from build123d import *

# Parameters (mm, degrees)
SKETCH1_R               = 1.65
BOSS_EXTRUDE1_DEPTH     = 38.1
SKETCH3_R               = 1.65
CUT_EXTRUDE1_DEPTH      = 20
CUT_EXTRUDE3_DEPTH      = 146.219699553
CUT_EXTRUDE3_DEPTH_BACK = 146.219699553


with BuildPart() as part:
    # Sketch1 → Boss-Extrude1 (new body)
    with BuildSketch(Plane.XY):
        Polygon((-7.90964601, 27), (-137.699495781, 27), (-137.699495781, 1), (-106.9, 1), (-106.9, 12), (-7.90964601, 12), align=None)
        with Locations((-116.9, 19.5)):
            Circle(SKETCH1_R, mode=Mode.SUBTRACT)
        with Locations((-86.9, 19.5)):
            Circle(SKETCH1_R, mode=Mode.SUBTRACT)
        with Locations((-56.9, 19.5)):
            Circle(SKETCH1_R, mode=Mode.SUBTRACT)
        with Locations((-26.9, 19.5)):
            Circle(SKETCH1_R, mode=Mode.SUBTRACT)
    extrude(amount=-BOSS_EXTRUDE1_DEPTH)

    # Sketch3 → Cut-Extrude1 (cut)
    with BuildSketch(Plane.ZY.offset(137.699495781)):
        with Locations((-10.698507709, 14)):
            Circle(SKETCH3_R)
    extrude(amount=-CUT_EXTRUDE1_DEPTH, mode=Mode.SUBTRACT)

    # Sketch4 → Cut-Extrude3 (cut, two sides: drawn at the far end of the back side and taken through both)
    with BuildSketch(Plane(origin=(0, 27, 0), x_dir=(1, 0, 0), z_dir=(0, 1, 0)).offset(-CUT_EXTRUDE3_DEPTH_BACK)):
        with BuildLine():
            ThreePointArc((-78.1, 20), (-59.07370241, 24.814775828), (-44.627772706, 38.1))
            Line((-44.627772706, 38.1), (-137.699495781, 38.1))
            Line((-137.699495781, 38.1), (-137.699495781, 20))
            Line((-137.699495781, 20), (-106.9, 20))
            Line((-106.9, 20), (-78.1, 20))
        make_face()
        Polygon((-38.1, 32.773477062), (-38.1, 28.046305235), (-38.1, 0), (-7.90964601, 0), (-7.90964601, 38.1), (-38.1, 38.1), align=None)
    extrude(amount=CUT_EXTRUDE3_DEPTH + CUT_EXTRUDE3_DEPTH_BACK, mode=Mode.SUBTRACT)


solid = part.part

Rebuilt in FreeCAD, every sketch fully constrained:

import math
import FreeCAD as App
import Part
import Sketcher

doc = App.newDocument("Part")
body = doc.addObject("PartDesign::Body", "Body")

# Sketch on XY plane
sketch1 = body.newObject("Sketcher::SketchObject", "Sketch")
sketch1.AttachmentSupport = (doc.getObject("XY_Plane"), [""])
sketch1.MapMode = "FlatFace"
sketch1.addGeometry(Part.LineSegment(App.Vector(-7.9, 27, 0), App.Vector(-137.7, 27, 0)), False)
sketch1.addGeometry(Part.LineSegment(App.Vector(-137.7, 27, 0), App.Vector(-137.7, 1, 0)), False)
sketch1.addGeometry(Part.LineSegment(App.Vector(-137.7, 1, 0), App.Vector(-106.9, 1, 0)), False)
sketch1.addGeometry(Part.LineSegment(App.Vector(-106.9, 1, 0), App.Vector(-106.9, 12, 0)), False)
sketch1.addGeometry(Part.LineSegment(App.Vector(-106.9, 12, 0), App.Vector(-7.9, 12, 0)), False)
sketch1.addGeometry(Part.LineSegment(App.Vector(-7.9, 12, 0), App.Vector(-7.9, 27, 0)), False)
sketch1.addGeometry(Part.Circle(App.Vector(-116.9, 19.5, 0), App.Vector(0, 0, 1), 1.6), False)
sketch1.addGeometry(Part.Circle(App.Vector(-86.9, 19.5, 0), App.Vector(0, 0, 1), 1.6), False)
sketch1.addGeometry(Part.Circle(App.Vector(-56.9, 19.5, 0), App.Vector(0, 0, 1), 1.6), False)
sketch1.addGeometry(Part.Circle(App.Vector(-26.9, 19.5, 0), App.Vector(0, 0, 1), 1.6), False)
sketch1.addConstraint(Sketcher.Constraint("Coincident", 0, 2, 1, 1))
sketch1.addConstraint(Sketcher.Constraint("Coincident", 1, 2, 2, 1))
sketch1.addConstraint(Sketcher.Constraint("Coincident", 2, 2, 3, 1))
sketch1.addConstraint(Sketcher.Constraint("Coincident", 3, 2, 4, 1))
sketch1.addConstraint(Sketcher.Constraint("Coincident", 4, 2, 5, 1))
sketch1.addConstraint(Sketcher.Constraint("Coincident", 5, 2, 0, 1))
sketch1.addConstraint(Sketcher.Constraint("Horizontal", 0))
sketch1.addConstraint(Sketcher.Constraint("Vertical", 1))
sketch1.addConstraint(Sketcher.Constraint("Horizontal", 2))
sketch1.addConstraint(Sketcher.Constraint("Vertical", 3))
sketch1.addConstraint(Sketcher.Constraint("Horizontal", 4))
sketch1.addConstraint(Sketcher.Constraint("Vertical", 5))
sketch1.addConstraint(Sketcher.Constraint("Equal", 6, 7))
sketch1.addConstraint(Sketcher.Constraint("Equal", 7, 8))
sketch1.addConstraint(Sketcher.Constraint("Equal", 8, 9))
sketch1.addConstraint(Sketcher.Constraint("Horizontal", 6, 3, 7, 3))
sketch1.addConstraint(Sketcher.Constraint("Horizontal", 7, 3, 8, 3))
sketch1.addConstraint(Sketcher.Constraint("Horizontal", 8, 3, 9, 3))
sketch1.addConstraint(Sketcher.Constraint("Diameter", 6, 3.3))
sketch1.addConstraint(Sketcher.Constraint("DistanceY", 1, 2, 1, 1, 26.0))
sketch1.addConstraint(Sketcher.Constraint("DistanceY", 3, 1, 3, 2, 11.0))
sketch1.addConstraint(Sketcher.Constraint("DistanceY", -1, 1, 0, 2, 27.0))
sketch1.addConstraint(Sketcher.Constraint("DistanceX", 6, 3, 7, 3, 30.0))
sketch1.addConstraint(Sketcher.Constraint("DistanceX", 7, 3, 8, 3, 30.0))
sketch1.addConstraint(Sketcher.Constraint("DistanceX", 8, 3, 9, 3, 30.0))
sketch1.addConstraint(Sketcher.Constraint("DistanceX", 6, 3, 2, 2, 10.0))
sketch1.addConstraint(Sketcher.Constraint("DistanceX", 6, 3, -1, 1, 116.9))
sketch1.addConstraint(Sketcher.Constraint("DistanceY", -1, 1, 6, 3, 19.5))
sketch1.addConstraint(Sketcher.Constraint("DistanceX", 0, 2, 0, 1, 129.78985))
sketch1.addConstraint(Sketcher.Constraint("DistanceX", 2, 1, 2, 2, 30.799496))
pad1 = body.newObject("PartDesign::Pad", "Pad")
pad1.Profile = sketch1
pad1.Length = 38.1
pad1.Reversed = True

# Sketch on YZ plane
sketch2 = body.newObject("Sketcher::SketchObject", "Sketch001")
sketch2.AttachmentSupport = (doc.getObject("YZ_Plane"), [""])
sketch2.MapMode = "FlatFace"
sketch2.AttachmentOffset = App.Placement(App.Vector(0, 0, -137.699496), App.Rotation())
sketch2.addGeometry(Part.Circle(App.Vector(14, -10.7, 0), App.Vector(0, 0, 1), 1.6), False)
sketch2.addConstraint(Sketcher.Constraint("Diameter", 0, 3.3))
sketch2.addConstraint(Sketcher.Constraint("DistanceX", -1, 1, 0, 3, 14.0))
sketch2.addConstraint(Sketcher.Constraint("DistanceY", 0, 3, -1, 1, 10.698508))
pocket1 = body.newObject("PartDesign::Pocket", "Pocket")
pocket1.Profile = sketch2
pocket1.Length = 20
pocket1.Reversed = True

# Sketch on XZ plane
sketch3 = body.newObject("Sketcher::SketchObject", "Sketch002")
sketch3.AttachmentSupport = (doc.getObject("XZ_Plane"), [""])
sketch3.MapMode = "FlatFace"
sketch3.AttachmentOffset = App.Placement(App.Vector(0, 0, -27), App.Rotation())
sketch3.addGeometry(Part.ArcOfCircle(Part.Circle(App.Vector(-78, -60, 0), App.Vector(0, 0, 1), 40), math.radians(33), math.radians(90)), False)
sketch3.addGeometry(Part.LineSegment(App.Vector(-45, -38, 0), App.Vector(-138, -38, 0)), False)
sketch3.addGeometry(Part.LineSegment(App.Vector(-138, -38, 0), App.Vector(-138, -20, 0)), False)
sketch3.addGeometry(Part.LineSegment(App.Vector(-138, -20, 0), App.Vector(-78, -20, 0)), False)
sketch3.addGeometry(Part.LineSegment(App.Vector(-38, 0, 0), App.Vector(-8, 0, 0)), False)
sketch3.addGeometry(Part.LineSegment(App.Vector(-8, 0, 0), App.Vector(-8, -38, 0)), False)
sketch3.addGeometry(Part.LineSegment(App.Vector(-8, -38, 0), App.Vector(-38, -38, 0)), False)
sketch3.addGeometry(Part.LineSegment(App.Vector(-38, -38, 0), App.Vector(-38, 0, 0)), False)
sketch3.addConstraint(Sketcher.Constraint("Coincident", 0, 1, 1, 1))
sketch3.addConstraint(Sketcher.Constraint("Coincident", 1, 2, 2, 1))
sketch3.addConstraint(Sketcher.Constraint("Coincident", 2, 2, 3, 1))
sketch3.addConstraint(Sketcher.Constraint("Tangent", 3, 2, 0, 2))
sketch3.addConstraint(Sketcher.Constraint("Coincident", 4, 2, 5, 1))
sketch3.addConstraint(Sketcher.Constraint("Coincident", 5, 2, 6, 1))
sketch3.addConstraint(Sketcher.Constraint("Coincident", 6, 2, 7, 1))
sketch3.addConstraint(Sketcher.Constraint("Coincident", 7, 2, 4, 1))
sketch3.addConstraint(Sketcher.Constraint("Horizontal", 1))
sketch3.addConstraint(Sketcher.Constraint("Vertical", 2))
sketch3.addConstraint(Sketcher.Constraint("Horizontal", 3))
sketch3.addConstraint(Sketcher.Constraint("Horizontal", 4))
sketch3.addConstraint(Sketcher.Constraint("Vertical", 5))
sketch3.addConstraint(Sketcher.Constraint("Horizontal", 6))
sketch3.addConstraint(Sketcher.Constraint("Vertical", 7))
sketch3.addConstraint(Sketcher.Constraint("PointOnObject", 4, 2, -1))
sketch3.addConstraint(Sketcher.Constraint("Horizontal", 1, 2, 5, 2))
sketch3.addConstraint(Sketcher.Constraint("Radius", 0, 40.0))
sketch3.addConstraint(Sketcher.Constraint("DistanceY", 2, 1, 2, 2, 18.1))
sketch3.addConstraint(Sketcher.Constraint("DistanceY", 5, 2, 5, 1, 38.1))
sketch3.addConstraint(Sketcher.Constraint("DistanceX", 3, 2, 6, 2, 40.0))
sketch3.addConstraint(Sketcher.Constraint("DistanceX", 0, 3, -1, 1, 78.1))
sketch3.addConstraint(Sketcher.Constraint("DistanceX", 1, 2, 1, 1, 93.071723))
sketch3.addConstraint(Sketcher.Constraint("DistanceX", 4, 1, 4, 2, 30.190354))
pocket2 = body.newObject("PartDesign::Pocket", "Pocket001")
pocket2.Profile = sketch3
pocket2.Type = "ThroughAll"
pocket2.Midplane = True

doc.recompute()
